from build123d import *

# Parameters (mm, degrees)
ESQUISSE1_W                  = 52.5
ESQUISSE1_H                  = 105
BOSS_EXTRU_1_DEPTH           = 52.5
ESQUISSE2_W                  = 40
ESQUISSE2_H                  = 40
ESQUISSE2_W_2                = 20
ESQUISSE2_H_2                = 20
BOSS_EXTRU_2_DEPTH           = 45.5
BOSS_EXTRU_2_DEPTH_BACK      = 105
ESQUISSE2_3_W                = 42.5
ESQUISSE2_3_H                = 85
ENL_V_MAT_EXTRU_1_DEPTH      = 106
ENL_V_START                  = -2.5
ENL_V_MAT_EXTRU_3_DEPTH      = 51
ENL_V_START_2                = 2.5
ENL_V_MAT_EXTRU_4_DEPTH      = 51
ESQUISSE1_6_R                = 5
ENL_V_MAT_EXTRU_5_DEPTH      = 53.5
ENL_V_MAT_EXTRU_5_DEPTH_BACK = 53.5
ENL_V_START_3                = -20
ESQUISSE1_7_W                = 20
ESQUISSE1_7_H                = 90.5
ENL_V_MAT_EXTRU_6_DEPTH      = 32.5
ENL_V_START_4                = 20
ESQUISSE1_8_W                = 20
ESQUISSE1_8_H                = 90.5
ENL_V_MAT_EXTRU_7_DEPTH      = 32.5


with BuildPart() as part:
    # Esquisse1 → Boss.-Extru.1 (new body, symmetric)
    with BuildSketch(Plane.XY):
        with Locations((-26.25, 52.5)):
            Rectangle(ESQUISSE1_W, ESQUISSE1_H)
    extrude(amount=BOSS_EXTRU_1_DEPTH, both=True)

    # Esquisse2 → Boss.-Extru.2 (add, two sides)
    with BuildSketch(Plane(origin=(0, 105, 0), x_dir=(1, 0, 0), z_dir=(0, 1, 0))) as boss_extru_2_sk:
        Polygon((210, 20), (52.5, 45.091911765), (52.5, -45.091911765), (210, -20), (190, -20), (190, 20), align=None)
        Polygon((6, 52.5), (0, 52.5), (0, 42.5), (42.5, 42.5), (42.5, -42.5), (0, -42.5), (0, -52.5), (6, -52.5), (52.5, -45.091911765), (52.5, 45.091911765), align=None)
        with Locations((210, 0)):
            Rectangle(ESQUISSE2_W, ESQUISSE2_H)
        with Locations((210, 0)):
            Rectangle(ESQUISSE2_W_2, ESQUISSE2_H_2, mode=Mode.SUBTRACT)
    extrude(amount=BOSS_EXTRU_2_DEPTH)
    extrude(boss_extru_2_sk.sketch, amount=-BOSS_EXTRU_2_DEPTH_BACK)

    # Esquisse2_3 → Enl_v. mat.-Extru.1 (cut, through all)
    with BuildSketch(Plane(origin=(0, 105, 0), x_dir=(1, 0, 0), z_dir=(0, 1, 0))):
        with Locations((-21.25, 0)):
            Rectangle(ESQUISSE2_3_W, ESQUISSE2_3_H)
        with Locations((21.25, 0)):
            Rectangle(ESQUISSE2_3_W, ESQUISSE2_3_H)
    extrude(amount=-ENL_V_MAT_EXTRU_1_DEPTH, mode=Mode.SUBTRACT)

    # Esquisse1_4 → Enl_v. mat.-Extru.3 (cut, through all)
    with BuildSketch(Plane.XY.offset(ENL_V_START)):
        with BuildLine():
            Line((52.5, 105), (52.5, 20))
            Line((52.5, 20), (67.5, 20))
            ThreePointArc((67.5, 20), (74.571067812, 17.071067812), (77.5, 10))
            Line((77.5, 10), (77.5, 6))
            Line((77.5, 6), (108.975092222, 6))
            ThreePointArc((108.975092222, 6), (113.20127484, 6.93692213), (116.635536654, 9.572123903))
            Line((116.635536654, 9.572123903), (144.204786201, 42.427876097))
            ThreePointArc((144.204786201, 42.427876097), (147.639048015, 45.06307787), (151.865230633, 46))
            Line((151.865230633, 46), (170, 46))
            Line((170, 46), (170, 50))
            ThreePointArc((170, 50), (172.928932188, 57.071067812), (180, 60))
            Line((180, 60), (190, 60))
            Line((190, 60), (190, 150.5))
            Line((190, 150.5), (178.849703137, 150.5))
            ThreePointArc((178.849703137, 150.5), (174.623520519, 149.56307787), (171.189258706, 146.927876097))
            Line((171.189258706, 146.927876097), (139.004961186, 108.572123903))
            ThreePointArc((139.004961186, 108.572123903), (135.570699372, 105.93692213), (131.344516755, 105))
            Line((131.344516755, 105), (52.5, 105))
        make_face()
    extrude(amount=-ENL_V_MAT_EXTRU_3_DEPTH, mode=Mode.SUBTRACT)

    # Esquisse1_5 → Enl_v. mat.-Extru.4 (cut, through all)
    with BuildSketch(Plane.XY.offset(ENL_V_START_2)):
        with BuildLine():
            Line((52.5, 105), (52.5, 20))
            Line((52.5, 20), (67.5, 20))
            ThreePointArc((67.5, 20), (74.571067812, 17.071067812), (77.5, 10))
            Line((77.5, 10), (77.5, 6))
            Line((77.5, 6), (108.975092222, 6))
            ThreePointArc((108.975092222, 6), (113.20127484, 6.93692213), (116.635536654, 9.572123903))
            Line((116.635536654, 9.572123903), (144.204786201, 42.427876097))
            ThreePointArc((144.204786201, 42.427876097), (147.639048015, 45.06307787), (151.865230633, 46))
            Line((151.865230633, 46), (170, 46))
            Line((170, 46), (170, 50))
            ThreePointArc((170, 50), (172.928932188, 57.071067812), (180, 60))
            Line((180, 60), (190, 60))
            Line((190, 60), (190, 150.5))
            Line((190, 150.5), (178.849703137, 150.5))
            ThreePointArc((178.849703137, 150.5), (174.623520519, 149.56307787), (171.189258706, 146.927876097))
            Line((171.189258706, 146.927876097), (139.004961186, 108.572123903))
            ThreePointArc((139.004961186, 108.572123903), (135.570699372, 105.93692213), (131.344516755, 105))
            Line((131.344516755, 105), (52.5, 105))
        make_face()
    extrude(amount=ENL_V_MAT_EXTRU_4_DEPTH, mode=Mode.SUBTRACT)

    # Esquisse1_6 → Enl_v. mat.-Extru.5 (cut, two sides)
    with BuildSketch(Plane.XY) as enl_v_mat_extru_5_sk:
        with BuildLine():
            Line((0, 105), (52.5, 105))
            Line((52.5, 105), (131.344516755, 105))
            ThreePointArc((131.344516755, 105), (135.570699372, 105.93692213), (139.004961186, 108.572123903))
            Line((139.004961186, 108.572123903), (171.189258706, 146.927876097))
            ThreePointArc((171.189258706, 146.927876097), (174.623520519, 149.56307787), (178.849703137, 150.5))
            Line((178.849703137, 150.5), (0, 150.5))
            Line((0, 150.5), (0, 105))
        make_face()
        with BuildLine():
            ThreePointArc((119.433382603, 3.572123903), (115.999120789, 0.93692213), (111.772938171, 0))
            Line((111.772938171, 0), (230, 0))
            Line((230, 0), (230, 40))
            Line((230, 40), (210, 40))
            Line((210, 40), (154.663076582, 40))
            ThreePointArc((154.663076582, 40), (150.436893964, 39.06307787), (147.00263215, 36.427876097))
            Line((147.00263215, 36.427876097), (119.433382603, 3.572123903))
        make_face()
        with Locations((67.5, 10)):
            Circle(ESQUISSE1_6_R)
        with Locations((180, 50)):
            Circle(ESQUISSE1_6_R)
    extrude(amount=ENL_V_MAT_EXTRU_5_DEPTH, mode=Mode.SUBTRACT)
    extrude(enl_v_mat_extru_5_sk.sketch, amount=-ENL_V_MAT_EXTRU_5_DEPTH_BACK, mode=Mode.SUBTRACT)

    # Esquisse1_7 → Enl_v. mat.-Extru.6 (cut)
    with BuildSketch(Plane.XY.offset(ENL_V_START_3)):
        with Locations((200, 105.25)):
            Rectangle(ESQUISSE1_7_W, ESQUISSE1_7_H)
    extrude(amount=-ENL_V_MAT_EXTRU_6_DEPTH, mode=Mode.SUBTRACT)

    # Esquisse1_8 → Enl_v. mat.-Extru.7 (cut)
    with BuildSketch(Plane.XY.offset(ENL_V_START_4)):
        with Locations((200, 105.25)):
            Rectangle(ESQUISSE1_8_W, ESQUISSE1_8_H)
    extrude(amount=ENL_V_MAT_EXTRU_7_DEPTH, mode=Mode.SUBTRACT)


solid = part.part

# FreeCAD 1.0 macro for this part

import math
import FreeCAD as App
import Part
import Sketcher
from FreeCAD import Vector
Q = App.Units.Quantity


def add_polygon(sketch, points):
    """Adds a closed chain of lines whose ends are joined by coincident constraints."""
    first, n = sketch.GeometryCount, len(points)
    for a, b in zip(points, points[1:] + points[:1]):
        sketch.addGeometry(Part.LineSegment(App.Vector(*a, 0), App.Vector(*b, 0)), False)
    for i in range(n):
        sketch.addConstraint(Sketcher.Constraint("Coincident", first + i, 2, first + (i + 1) % n, 1))

doc = App.newDocument("Part")
body = doc.addObject("PartDesign::Body", "Body")

# Sketch on XY plane
sketch1 = doc.addObject("Sketcher::SketchObject", "Sketch")
body.addObject(sketch1)
sketch1.AttachmentSupport = (doc.XY_Plane, [""])
sketch1.MapMode = "FlatFace"
add_polygon(sketch1, [(-52, 105), (-52, 0), (0, 0), (0, 105)])  # lines 0-3
sketch1.addConstraint([
    Sketcher.Constraint("Vertical", 0),
    Sketcher.Constraint("Horizontal", 1),
    Sketcher.Constraint("Vertical", 2),
    Sketcher.Constraint("Horizontal", 3),
    Sketcher.Constraint("Coincident", 1, 2, -1, 1),
    Sketcher.Constraint("DistanceY", 0, 2, 0, 1, 105.0),
    Sketcher.Constraint("DistanceX", 1, 1, 1, 2, 52.5),
])
pad1 = doc.addObject("PartDesign::Pad", "Pad")
body.addObject(pad1)
pad1.Profile = sketch1
pad1.Length = 105
pad1.Midplane = True

# Sketch on XZ plane
sketch2 = doc.addObject("Sketcher::SketchObject", "Sketch001")
body.addObject(sketch2)
sketch2.AttachmentSupport = (doc.XZ_Plane, [""])
sketch2.MapMode = "FlatFace"
sketch2.AttachmentOffset = App.Placement(Vector(0, 0, -105), App.Rotation())
add_polygon(sketch2, [(210, -20), (52, -45), (6, -52), (0, -52), (0, -42), (42, -42), (42, 42), (0, 42), (0, 52), (6, 52), (52, 45), (210, 20), (230, 20), (230, -20)])  # lines 0-13
add_polygon(sketch2, [(220, 10), (200, 10), (200, -10), (220, -10)])  # lines 14-17
sketch2.addConstraint([
    Sketcher.Constraint("Horizontal", 2),
    Sketcher.Constraint("Vertical", 3),
    Sketcher.Constraint("Horizontal", 4),
    Sketcher.Constraint("Vertical", 5),
    Sketcher.Constraint("Horizontal", 6),
    Sketcher.Constraint("Vertical", 7),
    Sketcher.Constraint("Horizontal", 8),
    Sketcher.Constraint("Horizontal", 11),
    Sketcher.Constraint("Vertical", 12),
    Sketcher.Constraint("Horizontal", 13),
    Sketcher.Constraint("Horizontal", 14),
    Sketcher.Constraint("Vertical", 15),
    Sketcher.Constraint("Horizontal", 16),
    Sketcher.Constraint("Vertical", 17),
    Sketcher.Constraint("Symmetric", 3, 2, 6, 2, -1, 1),
    Sketcher.Constraint("Symmetric", 2, 2, 7, 2, -1),
    Sketcher.Constraint("Symmetric", 0, 2, 9, 2, -1),
    Sketcher.Constraint("Symmetric", 10, 2, 13, 2, -1),
    Sketcher.Constraint("Parallel", 0, 1),
    Sketcher.Constraint("Parallel", 9, 10),
    Sketcher.Constraint("Equal", 13, 14),
    Sketcher.Constraint("Equal", 16, 15),
    Sketcher.Constraint("DistanceX", 2, 2, 2, 1, 6.0),
    Sketcher.Constraint("DistanceX", 11, 1, 11, 2, 20.0),
    Sketcher.Constraint("DistanceY", 3, 1, 3, 2, 10.0),
    Sketcher.Constraint("DistanceY", 5, 1, 5, 2, 85.0),
    Sketcher.Constraint("DistanceY", 12, 2, 12, 1, 40.0),
    Sketcher.Constraint("DistanceX", 4, 1, 4, 2, 42.5),
    Sketcher.Constraint("DistanceX", -1, 1, 10, 2, 210.0),
    Sketcher.Constraint("DistanceX", -1, 1, 14, 2, 200.0),
    Sketcher.Constraint("DistanceY", -1, 1, 14, 2, 10.0),
    Sketcher.Constraint("DistanceX", 4, 2, 0, 2, 10.0),
])
pad2 = doc.addObject("PartDesign::Pad", "Pad001")
body.addObject(pad2)
pad2.Profile = sketch2
pad2.Type = "TwoLengths"
pad2.Length = 45.5
pad2.Length2 = 105
pad2.Reversed = True

# Sketch on XZ plane
sketch3 = doc.addObject("Sketcher::SketchObject", "Sketch002")
body.addObject(sketch3)
sketch3.AttachmentSupport = (doc.XZ_Plane, [""])
sketch3.MapMode = "FlatFace"
sketch3.AttachmentOffset = App.Placement(Vector(0, 0, -105), App.Rotation())
add_polygon(sketch3, [(-42, -42), (-42, 42), (42, 42), (42, -42)])  # lines 0-3
sketch3.addConstraint([
    Sketcher.Constraint("Vertical", 0),
    Sketcher.Constraint("Horizontal", 1),
    Sketcher.Constraint("Vertical", 2),
    Sketcher.Constraint("Horizontal", 3),
    Sketcher.Constraint("Symmetric", 0, 2, 2, 2, -1, 1),
    Sketcher.Constraint("Equal", 3, 0),
    Sketcher.Constraint("DistanceX", 1, 1, 1, 2, 85.0),
])
pocket1 = doc.addObject("PartDesign::Pocket", "Pocket")
body.addObject(pocket1)
pocket1.Profile = sketch3
pocket1.Type = "ThroughAll"
pocket1.Reversed = True

# Sketch on XY plane
sketch4 = doc.addObject("Sketcher::SketchObject", "Sketch003")
body.addObject(sketch4)
sketch4.AttachmentSupport = (doc.XY_Plane, [""])
sketch4.MapMode = "FlatFace"
sketch4.AttachmentOffset = App.Placement(Vector(0, 0, -2.5), App.Rotation())
sketch4.addGeometry([
    Part.LineSegment(Vector(52.5, 105, 0), Vector(52.5, 20, 0)),  # 0
    Part.LineSegment(Vector(52.5, 20, 0), Vector(67.5, 20, 0)),  # 1
    Part.ArcOfCircle(Part.Circle(Vector(67.5, 10, 0), Vector(0, 0, 1), 10), math.radians(0), math.radians(90)),  # 2
    Part.LineSegment(Vector(77.5, 10, 0), Vector(77.5, 6, 0)),  # 3
    Part.LineSegment(Vector(77.5, 6, 0), Vector(109, 6, 0)),  # 4
    Part.ArcOfCircle(Part.Circle(Vector(109, 16, 0), Vector(0, 0, 1), 10), math.radians(-90), math.radians(-40)),  # 5
    Part.LineSegment(Vector(116.6, 9.6, 0), Vector(144.2, 42.4, 0)),  # 6
    Part.ArcOfCircle(Part.Circle(Vector(151.9, 36, 0), Vector(0, 0, 1), 10), math.radians(90), math.radians(140)),  # 7
    Part.LineSegment(Vector(151.9, 46, 0), Vector(170, 46, 0)),  # 8
    Part.LineSegment(Vector(170, 46, 0), Vector(170, 50, 0)),  # 9
    Part.ArcOfCircle(Part.Circle(Vector(180, 50, 0), Vector(0, 0, 1), 10), math.radians(90), math.radians(180)),  # 10
    Part.LineSegment(Vector(180, 60, 0), Vector(190, 60, 0)),  # 11
    Part.LineSegment(Vector(190, 60, 0), Vector(190, 150.5, 0)),  # 12
    Part.LineSegment(Vector(190, 150.5, 0), Vector(178.8, 150.5, 0)),  # 13
    Part.ArcOfCircle(Part.Circle(Vector(178.8, 140.5, 0), Vector(0, 0, 1), 10), math.radians(90), math.radians(140)),  # 14
    Part.LineSegment(Vector(171.2, 146.9, 0), Vector(139, 108.6, 0)),  # 15
    Part.ArcOfCircle(Part.Circle(Vector(131.3, 115, 0), Vector(0, 0, 1), 10), math.radians(-90), math.radians(-40)),  # 16
    Part.LineSegment(Vector(131.3, 105, 0), Vector(52.5, 105, 0)),  # 17
], False)
sketch4.addConstraint([
    Sketcher.Constraint("Coincident", 0, 2, 1, 1),
    Sketcher.Constraint("Tangent", 1, 2, 2, 2),
    Sketcher.Constraint("Tangent", 2, 1, 3, 1),
    Sketcher.Constraint("Coincident", 3, 2, 4, 1),
    Sketcher.Constraint("Tangent", 4, 2, 5, 1),
    Sketcher.Constraint("Tangent", 5, 2, 6, 1),
    Sketcher.Constraint("Tangent", 6, 2, 7, 2),
    Sketcher.Constraint("Tangent", 7, 1, 8, 1),
    Sketcher.Constraint("Coincident", 8, 2, 9, 1),
    Sketcher.Constraint("Tangent", 9, 2, 10, 2),
    Sketcher.Constraint("Tangent", 10, 1, 11, 1),
    Sketcher.Constraint("Coincident", 11, 2, 12, 1),
    Sketcher.Constraint("Coincident", 12, 2, 13, 1),
    Sketcher.Constraint("Tangent", 13, 2, 14, 1),
    Sketcher.Constraint("Tangent", 14, 2, 15, 1),
    Sketcher.Constraint("Tangent", 15, 2, 16, 2),
    Sketcher.Constraint("Tangent", 16, 1, 17, 1),
    Sketcher.Constraint("Coincident", 17, 2, 0, 1),
    Sketcher.Constraint("Vertical", 0),
    Sketcher.Constraint("Horizontal", 1),
    Sketcher.Constraint("Vertical", 3),
    Sketcher.Constraint("Horizontal", 4),
    Sketcher.Constraint("Horizontal", 8),
    Sketcher.Constraint("Vertical", 9),
    Sketcher.Constraint("Horizontal", 11),
    Sketcher.Constraint("Vertical", 12),
    Sketcher.Constraint("Horizontal", 13),
    Sketcher.Constraint("Horizontal", 17),
    Sketcher.Constraint("Equal", 2, 5),
    Sketcher.Constraint("Equal", 5, 7),
    Sketcher.Constraint("Equal", 7, 10),
    Sketcher.Constraint("Equal", 10, 14),
    Sketcher.Constraint("Equal", 14, 16),
    Sketcher.Constraint("Parallel", 6, 15),
    Sketcher.Constraint("Equal", 3, 9),
    Sketcher.Constraint("Radius", 2, 10.0),
    Sketcher.Constraint("DistanceX", 1, 1, 1, 2, 15.0),
    Sketcher.Constraint("DistanceX", 11, 1, 11, 2, 10.0),
    Sketcher.Constraint("DistanceY", 0, 2, 0, 1, 85.0),
    Sketcher.Constraint("DistanceY", 3, 2, 3, 1, 4.0),
    Sketcher.Constraint("Angle", 6, Q("50 deg")),
    Sketcher.Constraint("DistanceY", 12, 1, 12, 2, 90.5),
    Sketcher.Constraint("DistanceY", -1, 1, 2, 3, 10.0),
    Sketcher.Constraint("DistanceY", -1, 1, 7, 3, 36.0),
    Sketcher.Constraint("DistanceX", -1, 1, 10, 3, 180.0),
    Sketcher.Constraint("DistanceX", -1, 1, 2, 3, 67.5),
    Sketcher.Constraint("DistanceX", 8, 1, 8, 2, 18.134769),
    Sketcher.Constraint("DistanceX", 13, 2, 13, 1, 11.150297),
])
pocket2 = doc.addObject("PartDesign::Pocket", "Pocket001")
body.addObject(pocket2)
pocket2.Profile = sketch4
pocket2.Type = "ThroughAll"

# Sketch on XY plane
sketch5 = doc.addObject("Sketcher::SketchObject", "Sketch004")
body.addObject(sketch5)
sketch5.AttachmentSupport = (doc.XY_Plane, [""])
sketch5.MapMode = "FlatFace"
sketch5.AttachmentOffset = App.Placement(Vector(0, 0, 2.5), App.Rotation())
sketch5.addGeometry([
    Part.LineSegment(Vector(52.5, 105, 0), Vector(52.5, 20, 0)),  # 0
    Part.LineSegment(Vector(52.5, 20, 0), Vector(67.5, 20, 0)),  # 1
    Part.ArcOfCircle(Part.Circle(Vector(67.5, 10, 0), Vector(0, 0, 1), 10), math.radians(0), math.radians(90)),  # 2
    Part.LineSegment(Vector(77.5, 10, 0), Vector(77.5, 6, 0)),  # 3
    Part.LineSegment(Vector(77.5, 6, 0), Vector(109, 6, 0)),  # 4
    Part.ArcOfCircle(Part.Circle(Vector(109, 16, 0), Vector(0, 0, 1), 10), math.radians(-90), math.radians(-40)),  # 5
    Part.LineSegment(Vector(116.6, 9.6, 0), Vector(144.2, 42.4, 0)),  # 6
    Part.ArcOfCircle(Part.Circle(Vector(151.9, 36, 0), Vector(0, 0, 1), 10), math.radians(90), math.radians(140)),  # 7
    Part.LineSegment(Vector(151.9, 46, 0), Vector(170, 46, 0)),  # 8
    Part.LineSegment(Vector(170, 46, 0), Vector(170, 50, 0)),  # 9
    Part.ArcOfCircle(Part.Circle(Vector(180, 50, 0), Vector(0, 0, 1), 10), math.radians(90), math.radians(180)),  # 10
    Part.LineSegment(Vector(180, 60, 0), Vector(190, 60, 0)),  # 11
    Part.LineSegment(Vector(190, 60, 0), Vector(190, 150.5, 0)),  # 12
    Part.LineSegment(Vector(190, 150.5, 0), Vector(178.8, 150.5, 0)),  # 13
    Part.ArcOfCircle(Part.Circle(Vector(178.8, 140.5, 0), Vector(0, 0, 1), 10), math.radians(90), math.radians(140)),  # 14
    Part.LineSegment(Vector(171.2, 146.9, 0), Vector(139, 108.6, 0)),  # 15
    Part.ArcOfCircle(Part.Circle(Vector(131.3, 115, 0), Vector(0, 0, 1), 10), math.radians(-90), math.radians(-40)),  # 16
    Part.LineSegment(Vector(131.3, 105, 0), Vector(52.5, 105, 0)),  # 17
], False)
sketch5.addConstraint([
    Sketcher.Constraint("Coincident", 0, 2, 1, 1),
    Sketcher.Constraint("Tangent", 1, 2, 2, 2),
    Sketcher.Constraint("Tangent", 2, 1, 3, 1),
    Sketcher.Constraint("Coincident", 3, 2, 4, 1),
    Sketcher.Constraint("Tangent", 4, 2, 5, 1),
    Sketcher.Constraint("Tangent", 5, 2, 6, 1),
    Sketcher.Constraint("Tangent", 6, 2, 7, 2),
    Sketcher.Constraint("Tangent", 7, 1, 8, 1),
    Sketcher.Constraint("Coincident", 8, 2, 9, 1),
    Sketcher.Constraint("Tangent", 9, 2, 10, 2),
    Sketcher.Constraint("Tangent", 10, 1, 11, 1),
    Sketcher.Constraint("Coincident", 11, 2, 12, 1),
    Sketcher.Constraint("Coincident", 12, 2, 13, 1),
    Sketcher.Constraint("Tangent", 13, 2, 14, 1),
    Sketcher.Constraint("Tangent", 14, 2, 15, 1),
    Sketcher.Constraint("Tangent", 15, 2, 16, 2),
    Sketcher.Constraint("Tangent", 16, 1, 17, 1),
    Sketcher.Constraint("Coincident", 17, 2, 0, 1),
    Sketcher.Constraint("Vertical", 0),
    Sketcher.Constraint("Horizontal", 1),
    Sketcher.Constraint("Vertical", 3),
    Sketcher.Constraint("Horizontal", 4),
    Sketcher.Constraint("Horizontal", 8),
    Sketcher.Constraint("Vertical", 9),
    Sketcher.Constraint("Horizontal", 11),
    Sketcher.Constraint("Vertical", 12),
    Sketcher.Constraint("Horizontal", 13),
    Sketcher.Constraint("Horizontal", 17),
    Sketcher.Constraint("Equal", 2, 5),
    Sketcher.Constraint("Equal", 5, 7),
    Sketcher.Constraint("Equal", 7, 10),
    Sketcher.Constraint("Equal", 10, 14),
    Sketcher.Constraint("Equal", 14, 16),
    Sketcher.Constraint("Parallel", 6, 15),
    Sketcher.Constraint("Equal", 3, 9),
    Sketcher.Constraint("Radius", 2, 10.0),
    Sketcher.Constraint("DistanceX", 1, 1, 1, 2, 15.0),
    Sketcher.Constraint("DistanceX", 11, 1, 11, 2, 10.0),
    Sketcher.Constraint("DistanceY", 0, 2, 0, 1, 85.0),
    Sketcher.Constraint("DistanceY", 3, 2, 3, 1, 4.0),
    Sketcher.Constraint("Angle", 6, Q("50 deg")),
    Sketcher.Constraint("DistanceY", 12, 1, 12, 2, 90.5),
    Sketcher.Constraint("DistanceY", -1, 1, 2, 3, 10.0),
    Sketcher.Constraint("DistanceY", -1, 1, 7, 3, 36.0),
    Sketcher.Constraint("DistanceX", -1, 1, 10, 3, 180.0),
    Sketcher.Constraint("DistanceX", -1, 1, 2, 3, 67.5),
    Sketcher.Constraint("DistanceX", 8, 1, 8, 2, 18.134769),
    Sketcher.Constraint("DistanceX", 13, 2, 13, 1, 11.150297),
])
pocket3 = doc.addObject("PartDesign::Pocket", "Pocket002")
body.addObject(pocket3)
pocket3.Profile = sketch5
pocket3.Type = "ThroughAll"
pocket3.Reversed = True

# Sketch on XY plane
sketch6 = doc.addObject("Sketcher::SketchObject", "Sketch005")
body.addObject(sketch6)
sketch6.AttachmentSupport = (doc.XY_Plane, [""])
sketch6.MapMode = "FlatFace"
sketch6.addGeometry([
    Part.LineSegment(Vector(0, 105, 0), Vector(131, 105, 0)),  # 0
    Part.ArcOfCircle(Part.Circle(Vector(131, 115, 0), Vector(0, 0, 1), 10), math.radians(-90), math.radians(-40)),  # 1
    Part.LineSegment(Vector(139, 109, 0), Vector(171, 147, 0)),  # 2
    Part.ArcOfCircle(Part.Circle(Vector(179, 140, 0), Vector(0, 0, 1), 10), math.radians(90), math.radians(140)),  # 3
    Part.LineSegment(Vector(179, 150, 0), Vector(0, 150, 0)),  # 4
    Part.LineSegment(Vector(0, 150, 0), Vector(0, 105, 0)),  # 5
    Part.ArcOfCircle(Part.Circle(Vector(112, 10, 0), Vector(0, 0, 1), 10), math.radians(-90), math.radians(-40)),  # 6
    Part.LineSegment(Vector(112, 0, 0), Vector(230, 0, 0)),  # 7
    Part.LineSegment(Vector(230, 0, 0), Vector(230, 40, 0)),  # 8
    Part.LineSegment(Vector(230, 40, 0), Vector(155, 40, 0)),  # 9
    Part.ArcOfCircle(Part.Circle(Vector(155, 30, 0), Vector(0, 0, 1), 10), math.radians(90), math.radians(140)),  # 10
    Part.LineSegment(Vector(147, 36, 0), Vector(119, 4, 0)),  # 11
    Part.Circle(Vector(68, 10, 0), Vector(0, 0, 1), 5),  # 12
    Part.Circle(Vector(180, 50, 0), Vector(0, 0, 1), 5),  # 13
], False)
sketch6.addConstraint([
    Sketcher.Constraint("Tangent", 0, 2, 1, 1),
    Sketcher.Constraint("Tangent", 1, 2, 2, 1),
    Sketcher.Constraint("Tangent", 2, 2, 3, 2),
    Sketcher.Constraint("Tangent", 3, 1, 4, 1),
    Sketcher.Constraint("Coincident", 4, 2, 5, 1),
    Sketcher.Constraint("Coincident", 5, 2, 0, 1),
    Sketcher.Constraint("Tangent", 6, 1, 7, 1),
    Sketcher.Constraint("Coincident", 7, 2, 8, 1),
    Sketcher.Constraint("Coincident", 8, 2, 9, 1),
    Sketcher.Constraint("Tangent", 9, 2, 10, 1),
    Sketcher.Constraint("Tangent", 10, 2, 11, 1),
    Sketcher.Constraint("Tangent", 11, 2, 6, 2),
    Sketcher.Constraint("Horizontal", 0),
    Sketcher.Constraint("Horizontal", 4),
    Sketcher.Constraint("Vertical", 5),
    Sketcher.Constraint("Horizontal", 7),
    Sketcher.Constraint("Vertical", 8),
    Sketcher.Constraint("Horizontal", 9),
    Sketcher.Constraint("Equal", 1, 3),
    Sketcher.Constraint("Equal", 3, 6),
    Sketcher.Constraint("Equal", 6, 10),
    Sketcher.Constraint("Equal", 12, 13),
    Sketcher.Constraint("PointOnObject", 4, 2, -2),
    Sketcher.Constraint("PointOnObject", 6, 1, -1),
    Sketcher.Constraint("Parallel", 2, 11),
    Sketcher.Constraint("Horizontal", 6, 3, 12, 3),
    Sketcher.Constraint("Diameter", 12, 10.0),
    Sketcher.Constraint("Radius", 1, 10.0),
    Sketcher.Constraint("DistanceY", 8, 1, 8, 2, 40.0),
    Sketcher.Constraint("Angle", 2, Q("50 deg")),
    Sketcher.Constraint("DistanceY", 5, 2, 5, 1, 45.5),
    Sketcher.Constraint("DistanceY", -1, 1, 1, 3, 115.0),
    Sketcher.Constraint("DistanceX", -1, 1, 13, 3, 180.0),
    Sketcher.Constraint("DistanceY", -1, 1, 13, 3, 50.0),
    Sketcher.Constraint("DistanceX", -1, 1, 7, 2, 230.0),
    Sketcher.Constraint("DistanceX", -1, 1, 12, 3, 67.5),
    Sketcher.Constraint("DistanceX", 7, 1, 7, 2, 118.227062),
    Sketcher.Constraint("DistanceX", 0, 1, 0, 2, 131.344517),
])
pocket4 = doc.addObject("PartDesign::Pocket", "Pocket003")
body.addObject(pocket4)
pocket4.Profile = sketch6
pocket4.Type = "ThroughAll"
pocket4.Midplane = True

# Sketch on XY plane
sketch7 = doc.addObject("Sketcher::SketchObject", "Sketch006")
body.addObject(sketch7)
sketch7.AttachmentSupport = (doc.XY_Plane, [""])
sketch7.MapMode = "FlatFace"
sketch7.AttachmentOffset = App.Placement(Vector(0, 0, -20), App.Rotation())
add_polygon(sketch7, [(190, 150), (190, 60), (210, 60), (210, 150)])  # lines 0-3
sketch7.addConstraint([
    Sketcher.Constraint("Vertical", 0),
    Sketcher.Constraint("Horizontal", 1),
    Sketcher.Constraint("Vertical", 2),
    Sketcher.Constraint("Horizontal", 3),
    Sketcher.Constraint("DistanceX", 1, 1, 1, 2, 20.0),
    Sketcher.Constraint("DistanceY", 0, 2, 0, 1, 90.5),
    Sketcher.Constraint("DistanceX", -1, 1, 0, 2, 190.0),
    Sketcher.Constraint("DistanceY", -1, 1, 0, 2, 60.0),
])
pocket5 = doc.addObject("PartDesign::Pocket", "Pocket004")
body.addObject(pocket5)
pocket5.Profile = sketch7
pocket5.Length = 32.5

# Sketch on XY plane
sketch8 = doc.addObject("Sketcher::SketchObject", "Sketch007")
body.addObject(sketch8)
sketch8.AttachmentSupport = (doc.XY_Plane, [""])
sketch8.MapMode = "FlatFace"
sketch8.AttachmentOffset = App.Placement(Vector(0, 0, 20), App.Rotation())
add_polygon(sketch8, [(190, 150), (190, 60), (210, 60), (210, 150)])  # lines 0-3
sketch8.addConstraint([
    Sketcher.Constraint("Vertical", 0),
    Sketcher.Constraint("Horizontal", 1),
    Sketcher.Constraint("Vertical", 2),
    Sketcher.Constraint("Horizontal", 3),
    Sketcher.Constraint("DistanceX", 1, 1, 1, 2, 20.0),
    Sketcher.Constraint("DistanceY", 0, 2, 0, 1, 90.5),
    Sketcher.Constraint("DistanceX", -1, 1, 0, 2, 190.0),
    Sketcher.Constraint("DistanceY", -1, 1, 0, 2, 60.0),
])
pocket6 = doc.addObject("PartDesign::Pocket", "Pocket005")
body.addObject(pocket6)
pocket6.Profile = sketch8
pocket6.Length = 32.5
pocket6.Reversed = True

doc.recompute()
